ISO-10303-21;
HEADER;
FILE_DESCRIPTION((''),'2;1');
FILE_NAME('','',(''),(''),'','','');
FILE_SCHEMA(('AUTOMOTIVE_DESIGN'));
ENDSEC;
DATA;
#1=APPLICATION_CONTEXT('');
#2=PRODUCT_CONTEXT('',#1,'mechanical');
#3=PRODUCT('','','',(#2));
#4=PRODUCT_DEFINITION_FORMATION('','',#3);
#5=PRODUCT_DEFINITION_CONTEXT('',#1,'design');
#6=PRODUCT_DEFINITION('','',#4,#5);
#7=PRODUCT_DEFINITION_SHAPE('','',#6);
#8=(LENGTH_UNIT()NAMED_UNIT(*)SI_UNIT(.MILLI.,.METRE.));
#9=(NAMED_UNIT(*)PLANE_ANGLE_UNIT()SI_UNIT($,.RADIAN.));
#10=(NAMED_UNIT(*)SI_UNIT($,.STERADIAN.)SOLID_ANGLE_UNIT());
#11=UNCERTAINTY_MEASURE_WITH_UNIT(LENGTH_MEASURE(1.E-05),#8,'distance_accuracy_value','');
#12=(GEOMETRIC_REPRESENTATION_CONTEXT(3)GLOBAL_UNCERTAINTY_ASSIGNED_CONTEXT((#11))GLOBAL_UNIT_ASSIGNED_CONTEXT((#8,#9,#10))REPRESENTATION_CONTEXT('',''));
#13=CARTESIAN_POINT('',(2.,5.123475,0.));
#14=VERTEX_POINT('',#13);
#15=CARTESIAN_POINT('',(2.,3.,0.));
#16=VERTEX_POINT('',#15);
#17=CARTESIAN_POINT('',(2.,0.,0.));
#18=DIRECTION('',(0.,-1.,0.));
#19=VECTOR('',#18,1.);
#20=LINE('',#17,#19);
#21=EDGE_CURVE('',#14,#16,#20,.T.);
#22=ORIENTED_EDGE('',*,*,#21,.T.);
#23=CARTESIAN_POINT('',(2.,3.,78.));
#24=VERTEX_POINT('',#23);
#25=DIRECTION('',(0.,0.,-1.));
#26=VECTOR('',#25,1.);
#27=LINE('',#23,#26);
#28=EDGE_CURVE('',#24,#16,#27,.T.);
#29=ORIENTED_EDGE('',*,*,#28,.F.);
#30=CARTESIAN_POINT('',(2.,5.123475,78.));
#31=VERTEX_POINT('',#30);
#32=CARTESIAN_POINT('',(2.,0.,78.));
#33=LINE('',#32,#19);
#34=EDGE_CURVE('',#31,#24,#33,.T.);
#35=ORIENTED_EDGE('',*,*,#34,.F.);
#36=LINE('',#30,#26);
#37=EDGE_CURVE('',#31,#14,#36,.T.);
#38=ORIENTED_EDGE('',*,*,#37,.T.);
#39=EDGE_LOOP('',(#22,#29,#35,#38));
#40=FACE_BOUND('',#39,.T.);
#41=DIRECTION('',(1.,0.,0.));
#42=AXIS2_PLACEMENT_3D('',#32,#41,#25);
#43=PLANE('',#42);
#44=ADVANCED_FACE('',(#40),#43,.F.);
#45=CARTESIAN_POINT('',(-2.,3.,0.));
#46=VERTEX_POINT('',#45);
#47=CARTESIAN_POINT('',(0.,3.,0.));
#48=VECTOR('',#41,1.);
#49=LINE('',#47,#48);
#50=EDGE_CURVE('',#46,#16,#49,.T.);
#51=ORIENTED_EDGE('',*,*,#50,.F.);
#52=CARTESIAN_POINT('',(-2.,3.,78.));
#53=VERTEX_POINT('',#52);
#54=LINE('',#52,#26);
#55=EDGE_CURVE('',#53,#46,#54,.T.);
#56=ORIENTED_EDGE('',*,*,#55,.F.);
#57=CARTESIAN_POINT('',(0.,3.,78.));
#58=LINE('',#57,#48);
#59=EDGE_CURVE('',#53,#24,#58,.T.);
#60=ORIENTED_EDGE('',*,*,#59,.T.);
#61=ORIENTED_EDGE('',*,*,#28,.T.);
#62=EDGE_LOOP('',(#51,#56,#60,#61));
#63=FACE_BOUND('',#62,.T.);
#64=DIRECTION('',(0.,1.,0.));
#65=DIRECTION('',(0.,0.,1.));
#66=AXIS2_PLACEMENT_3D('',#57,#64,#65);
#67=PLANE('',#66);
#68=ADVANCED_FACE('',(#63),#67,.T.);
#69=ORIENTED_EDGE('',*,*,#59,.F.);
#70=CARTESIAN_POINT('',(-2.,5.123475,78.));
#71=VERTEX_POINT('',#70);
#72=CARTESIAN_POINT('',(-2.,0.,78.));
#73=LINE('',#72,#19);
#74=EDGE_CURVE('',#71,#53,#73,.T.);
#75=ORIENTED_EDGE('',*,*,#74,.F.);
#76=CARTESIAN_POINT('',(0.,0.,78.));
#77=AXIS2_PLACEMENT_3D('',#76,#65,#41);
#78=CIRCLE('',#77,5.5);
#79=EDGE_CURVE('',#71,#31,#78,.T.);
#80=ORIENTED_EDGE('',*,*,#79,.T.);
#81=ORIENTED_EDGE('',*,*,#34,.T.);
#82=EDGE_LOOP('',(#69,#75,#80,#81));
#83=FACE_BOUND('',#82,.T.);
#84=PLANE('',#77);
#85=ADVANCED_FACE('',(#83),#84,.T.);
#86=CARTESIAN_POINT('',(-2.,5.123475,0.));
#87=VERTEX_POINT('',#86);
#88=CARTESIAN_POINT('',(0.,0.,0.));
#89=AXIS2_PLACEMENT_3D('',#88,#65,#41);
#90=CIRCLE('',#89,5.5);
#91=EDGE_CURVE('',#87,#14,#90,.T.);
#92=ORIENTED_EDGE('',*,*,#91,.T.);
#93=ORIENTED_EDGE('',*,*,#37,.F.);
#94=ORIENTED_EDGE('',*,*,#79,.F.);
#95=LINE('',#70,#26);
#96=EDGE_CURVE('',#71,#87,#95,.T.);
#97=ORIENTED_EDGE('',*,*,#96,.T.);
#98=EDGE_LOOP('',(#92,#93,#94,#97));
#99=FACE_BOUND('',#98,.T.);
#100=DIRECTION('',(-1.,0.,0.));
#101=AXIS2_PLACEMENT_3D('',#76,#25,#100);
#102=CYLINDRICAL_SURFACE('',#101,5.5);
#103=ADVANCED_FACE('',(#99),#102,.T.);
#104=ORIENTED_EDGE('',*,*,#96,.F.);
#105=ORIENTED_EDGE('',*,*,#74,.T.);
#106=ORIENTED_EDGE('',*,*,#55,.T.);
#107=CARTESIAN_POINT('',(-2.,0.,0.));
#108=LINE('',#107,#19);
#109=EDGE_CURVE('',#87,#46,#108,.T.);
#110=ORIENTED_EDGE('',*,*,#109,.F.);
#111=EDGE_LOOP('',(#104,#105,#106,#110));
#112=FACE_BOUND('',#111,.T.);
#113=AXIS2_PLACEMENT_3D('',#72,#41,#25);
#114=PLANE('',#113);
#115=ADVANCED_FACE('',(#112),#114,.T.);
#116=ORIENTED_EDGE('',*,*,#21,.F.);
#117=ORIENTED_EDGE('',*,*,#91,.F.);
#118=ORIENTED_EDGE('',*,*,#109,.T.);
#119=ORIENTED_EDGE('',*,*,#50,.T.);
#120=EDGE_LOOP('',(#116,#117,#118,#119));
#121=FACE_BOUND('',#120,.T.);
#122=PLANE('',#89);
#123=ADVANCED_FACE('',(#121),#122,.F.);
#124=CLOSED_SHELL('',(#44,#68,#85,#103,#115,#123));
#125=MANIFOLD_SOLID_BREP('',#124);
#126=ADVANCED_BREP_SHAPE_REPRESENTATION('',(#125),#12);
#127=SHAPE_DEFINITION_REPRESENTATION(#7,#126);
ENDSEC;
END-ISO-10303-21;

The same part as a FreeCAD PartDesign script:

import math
import FreeCAD as App
import Part
import Sketcher

V = App.Vector

doc = App.newDocument("Part")
params = doc.addObject("Spreadsheet::Sheet", "Params")
for row, (alias, value) in enumerate([
    ("sketch1_radius", "5.5 mm"),
    ("sketch1_width", "4 mm"),
    ("pad1_length", "78 mm"),
], start=1):
    params.set(f"A{row}", alias)
    params.set(f"B{row}", "=" + value)
    params.setAlias(f"B{row}", alias)

body = doc.addObject("PartDesign::Body", "Body")

sketch1 = doc.addObject("Sketcher::SketchObject", "Sketch")
body.addObject(sketch1)
sketch1.AttachmentSupport = (doc.XY_Plane, [""])
sketch1.MapMode = "FlatFace"
sketch1.addGeometry([
    Part.LineSegment(V(-2, 3, 0), V(-2, 5.1, 0)),
    Part.ArcOfCircle(Part.Circle(V(0, 0, 0), V(0, 0, 1), 5.5), math.radians(111), math.radians(360)),
    Part.ArcOfCircle(Part.Circle(V(0, 0, 0), V(0, 0, 1), 5.5), math.radians(0), math.radians(69)),
    Part.LineSegment(V(2, 5.1, 0), V(2, 3, 0)),
    Part.LineSegment(V(2, 3, 0), V(-2, 3, 0)),
], False)
sketch1.addConstraint([
    Sketcher.Constraint("Coincident", 0, 2, 1, 1),
    Sketcher.Constraint("Tangent", 1, 2, 2, 1),
    Sketcher.Constraint("Coincident", 2, 2, 3, 1),
    Sketcher.Constraint("Coincident", 3, 2, 4, 1),
    Sketcher.Constraint("Coincident", 4, 2, 0, 1),
    Sketcher.Constraint("Vertical", 0),
    Sketcher.Constraint("Vertical", 3),
    Sketcher.Constraint("Horizontal", 4),
    Sketcher.Constraint("Coincident", 1, 3, -1, 1),
    Sketcher.Constraint("Equal", 1, 2),
    Sketcher.Constraint("PointOnObject", 1, 2, -1),
    Sketcher.Constraint("Horizontal", 0, 2, 2, 2),
    Sketcher.Constraint("Radius", 1, 5.5),
    Sketcher.Constraint("DistanceX", 4, 2, 4, 1, 4.0),
    Sketcher.Constraint("DistanceY", -1, 1, 3, 2, 3.0),
])
sketch1.setExpression("Constraints[12]", "Params.sketch1_radius")
sketch1.setExpression("Constraints[13]", "Params.sketch1_width")
pad1 = doc.addObject("PartDesign::Pad", "Pad")
body.addObject(pad1)
pad1.Profile = sketch1
pad1.setExpression("Length", "Params.pad1_length")

doc.recompute()
